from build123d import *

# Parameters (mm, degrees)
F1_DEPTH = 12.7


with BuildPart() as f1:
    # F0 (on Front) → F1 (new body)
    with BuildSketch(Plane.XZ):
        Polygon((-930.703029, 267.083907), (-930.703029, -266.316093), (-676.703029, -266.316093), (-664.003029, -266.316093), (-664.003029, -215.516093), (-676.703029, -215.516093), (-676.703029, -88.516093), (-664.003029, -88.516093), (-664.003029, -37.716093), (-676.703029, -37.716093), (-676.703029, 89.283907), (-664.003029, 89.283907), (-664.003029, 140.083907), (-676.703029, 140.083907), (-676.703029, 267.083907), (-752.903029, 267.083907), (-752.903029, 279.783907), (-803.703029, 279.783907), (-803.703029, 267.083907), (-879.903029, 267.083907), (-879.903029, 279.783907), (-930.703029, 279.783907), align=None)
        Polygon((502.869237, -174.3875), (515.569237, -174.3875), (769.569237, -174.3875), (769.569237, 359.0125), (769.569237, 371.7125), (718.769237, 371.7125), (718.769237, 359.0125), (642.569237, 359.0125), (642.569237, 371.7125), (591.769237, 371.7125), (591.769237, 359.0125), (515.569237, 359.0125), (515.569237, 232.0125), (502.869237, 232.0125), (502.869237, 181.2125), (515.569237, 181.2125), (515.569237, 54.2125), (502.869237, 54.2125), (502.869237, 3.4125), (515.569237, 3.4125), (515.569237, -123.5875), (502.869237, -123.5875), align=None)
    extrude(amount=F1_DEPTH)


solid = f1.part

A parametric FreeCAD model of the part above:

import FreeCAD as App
import Part
import Sketcher
from FreeCAD import Vector
Q = App.Units.Quantity


def add_polygon(sketch, points):
    """Adds a closed chain of lines whose ends are joined by coincident constraints."""
    first, n = sketch.GeometryCount, len(points)
    for a, b in zip(points, points[1:] + points[:1]):
        sketch.addGeometry(Part.LineSegment(App.Vector(*a, 0), App.Vector(*b, 0)), False)
    for i in range(n):
        sketch.addConstraint(Sketcher.Constraint("Coincident", first + i, 2, first + (i + 1) % n, 1))

doc = App.newDocument("Part")
body = doc.addObject("PartDesign::Body", "Body")
body.AllowCompound = True

sketch1 = body.newObject("Sketcher::SketchObject", "Sketch")
sketch1.AttachmentSupport = (doc.getObject("XZ_Plane"), [""])
sketch1.MapMode = "FlatFace"
add_polygon(sketch1, [(-930.703029, -266.316093), (-664.003029, -266.316093), (-664.003029, -215.516093), (-676.703029, -215.516093), (-676.703029, -88.516093), (-664.003029, -88.516093), (-664.003029, -37.716093), (-676.703029, -37.716093), (-676.703029, 89.283907), (-664.003029, 89.283907), (-664.003029, 140.083907), (-676.703029, 140.083907), (-676.703029, 267.083907), (-752.903029, 267.083907), (-752.903029, 279.783907), (-803.703029, 279.783907), (-803.703029, 267.083907), (-879.903029, 267.083907), (-879.903029, 279.783907), (-930.703029, 279.783907)])
add_polygon(sketch1, [(502.869237, -174.3875), (769.569237, -174.3875), (769.569237, 371.7125), (718.769237, 371.7125), (718.769237, 359.0125), (642.569237, 359.0125), (642.569237, 371.7125), (591.769237, 371.7125), (591.769237, 359.0125), (515.569237, 359.0125), (515.569237, 232.0125), (502.869237, 232.0125), (502.869237, 181.2125), (515.569237, 181.2125), (515.569237, 54.2125), (502.869237, 54.2125), (502.869237, 3.4125), (515.569237, 3.4125), (515.569237, -123.5875), (502.869237, -123.5875)])
sketch1.addConstraint([
    Sketcher.Constraint("Horizontal", 0),
    Sketcher.Constraint("Vertical", 1),
    Sketcher.Constraint("Horizontal", 2),
    Sketcher.Constraint("Vertical", 3),
    Sketcher.Constraint("Horizontal", 4),
    Sketcher.Constraint("Vertical", 5),
    Sketcher.Constraint("Horizontal", 6),
    Sketcher.Constraint("Vertical", 7),
    Sketcher.Constraint("Horizontal", 8),
    Sketcher.Constraint("Vertical", 9),
    Sketcher.Constraint("Horizontal", 10),
    Sketcher.Constraint("Vertical", 11),
    Sketcher.Constraint("Horizontal", 12),
    Sketcher.Constraint("Vertical", 13),
    Sketcher.Constraint("Horizontal", 14),
    Sketcher.Constraint("Vertical", 15),
    Sketcher.Constraint("Horizontal", 16),
    Sketcher.Constraint("Vertical", 17),
    Sketcher.Constraint("Horizontal", 18),
    Sketcher.Constraint("Vertical", 19),
    Sketcher.Constraint("Horizontal", 20),
    Sketcher.Constraint("Vertical", 21),
    Sketcher.Constraint("Horizontal", 22),
    Sketcher.Constraint("Vertical", 23),
    Sketcher.Constraint("Horizontal", 24),
    Sketcher.Constraint("Vertical", 25),
    Sketcher.Constraint("Horizontal", 26),
    Sketcher.Constraint("Vertical", 27),
    Sketcher.Constraint("Horizontal", 28),
    Sketcher.Constraint("Vertical", 29),
    Sketcher.Constraint("Horizontal", 30),
    Sketcher.Constraint("Vertical", 31),
    Sketcher.Constraint("Horizontal", 32),
    Sketcher.Constraint("Vertical", 33),
    Sketcher.Constraint("Horizontal", 34),
    Sketcher.Constraint("Vertical", 35),
    Sketcher.Constraint("Horizontal", 36),
    Sketcher.Constraint("Vertical", 37),
    Sketcher.Constraint("Horizontal", 38),
    Sketcher.Constraint("Vertical", 39),
    Sketcher.Constraint("Horizontal", 12, 2, 15, 2),
    Sketcher.Constraint("Horizontal", 14, 2, 17, 2),
    Sketcher.Constraint("Horizontal", 22, 2, 25, 2),
    Sketcher.Constraint("Horizontal", 24, 2, 27, 2),
    Sketcher.Constraint("Vertical", 1, 2, 4, 2),
    Sketcher.Constraint("Vertical", 3, 2, 6, 2),
    Sketcher.Constraint("Vertical", 5, 2, 8, 2),
    Sketcher.Constraint("Vertical", 7, 2, 10, 2),
    Sketcher.Constraint("Vertical", 29, 2, 32, 2),
    Sketcher.Constraint("Vertical", 31, 2, 34, 2),
    Sketcher.Constraint("Vertical", 33, 2, 36, 2),
    Sketcher.Constraint("Vertical", 35, 2, 38, 2),
    Sketcher.Constraint("Equal", 12, 16),
    Sketcher.Constraint("Equal", 14, 18),
    Sketcher.Constraint("Equal", 0, 20),
    Sketcher.Constraint("Equal", 18, 22),
    Sketcher.Constraint("Equal", 16, 24),
    Sketcher.Constraint("Equal", 22, 26),
    Sketcher.Constraint("Equal", 24, 28),
    Sketcher.Constraint("Equal", 26, 1),
    Sketcher.Constraint("Equal", 1, 5),
    Sketcher.Constraint("Equal", 3, 7),
    Sketcher.Constraint("Equal", 5, 9),
    Sketcher.Constraint("Equal", 7, 11),
    Sketcher.Constraint("Equal", 38, 13),
    Sketcher.Constraint("Equal", 19, 21),
    Sketcher.Constraint("Equal", 17, 23),
    Sketcher.Constraint("Equal", 11, 29),
    Sketcher.Constraint("Equal", 9, 31),
    Sketcher.Constraint("Equal", 29, 33),
    Sketcher.Constraint("Equal", 31, 35),
    Sketcher.Constraint("Equal", 33, 37),
    Sketcher.Constraint("DistanceX", 12, 2, 12, 1, Q("3 in")),
    Sketcher.Constraint("DistanceX", 14, 2, 14, 1, Q("2 in")),
    Sketcher.Constraint("DistanceY", 3, 1, 3, 2, Q("5 in")),
    Sketcher.Constraint("DistanceX", 0, 1, 0, 2, Q("10.5 in")),
    Sketcher.Constraint("DistanceY", 20, 2, -1, 1, Q("174.3875 mm")),
    Sketcher.Constraint("DistanceX", 0, 2, -1, 1, Q("664.003029 mm")),
    Sketcher.Constraint("DistanceY", 0, 2, -1, 1, Q("266.316093 mm")),
    Sketcher.Constraint("DistanceX", -1, 1, 20, 2, Q("769.569237 mm")),
])
pad1 = body.newObject("PartDesign::Pad", "Pad")
pad1.Profile = sketch1
pad1.Length = Q("0.5 in")

doc.recompute()
